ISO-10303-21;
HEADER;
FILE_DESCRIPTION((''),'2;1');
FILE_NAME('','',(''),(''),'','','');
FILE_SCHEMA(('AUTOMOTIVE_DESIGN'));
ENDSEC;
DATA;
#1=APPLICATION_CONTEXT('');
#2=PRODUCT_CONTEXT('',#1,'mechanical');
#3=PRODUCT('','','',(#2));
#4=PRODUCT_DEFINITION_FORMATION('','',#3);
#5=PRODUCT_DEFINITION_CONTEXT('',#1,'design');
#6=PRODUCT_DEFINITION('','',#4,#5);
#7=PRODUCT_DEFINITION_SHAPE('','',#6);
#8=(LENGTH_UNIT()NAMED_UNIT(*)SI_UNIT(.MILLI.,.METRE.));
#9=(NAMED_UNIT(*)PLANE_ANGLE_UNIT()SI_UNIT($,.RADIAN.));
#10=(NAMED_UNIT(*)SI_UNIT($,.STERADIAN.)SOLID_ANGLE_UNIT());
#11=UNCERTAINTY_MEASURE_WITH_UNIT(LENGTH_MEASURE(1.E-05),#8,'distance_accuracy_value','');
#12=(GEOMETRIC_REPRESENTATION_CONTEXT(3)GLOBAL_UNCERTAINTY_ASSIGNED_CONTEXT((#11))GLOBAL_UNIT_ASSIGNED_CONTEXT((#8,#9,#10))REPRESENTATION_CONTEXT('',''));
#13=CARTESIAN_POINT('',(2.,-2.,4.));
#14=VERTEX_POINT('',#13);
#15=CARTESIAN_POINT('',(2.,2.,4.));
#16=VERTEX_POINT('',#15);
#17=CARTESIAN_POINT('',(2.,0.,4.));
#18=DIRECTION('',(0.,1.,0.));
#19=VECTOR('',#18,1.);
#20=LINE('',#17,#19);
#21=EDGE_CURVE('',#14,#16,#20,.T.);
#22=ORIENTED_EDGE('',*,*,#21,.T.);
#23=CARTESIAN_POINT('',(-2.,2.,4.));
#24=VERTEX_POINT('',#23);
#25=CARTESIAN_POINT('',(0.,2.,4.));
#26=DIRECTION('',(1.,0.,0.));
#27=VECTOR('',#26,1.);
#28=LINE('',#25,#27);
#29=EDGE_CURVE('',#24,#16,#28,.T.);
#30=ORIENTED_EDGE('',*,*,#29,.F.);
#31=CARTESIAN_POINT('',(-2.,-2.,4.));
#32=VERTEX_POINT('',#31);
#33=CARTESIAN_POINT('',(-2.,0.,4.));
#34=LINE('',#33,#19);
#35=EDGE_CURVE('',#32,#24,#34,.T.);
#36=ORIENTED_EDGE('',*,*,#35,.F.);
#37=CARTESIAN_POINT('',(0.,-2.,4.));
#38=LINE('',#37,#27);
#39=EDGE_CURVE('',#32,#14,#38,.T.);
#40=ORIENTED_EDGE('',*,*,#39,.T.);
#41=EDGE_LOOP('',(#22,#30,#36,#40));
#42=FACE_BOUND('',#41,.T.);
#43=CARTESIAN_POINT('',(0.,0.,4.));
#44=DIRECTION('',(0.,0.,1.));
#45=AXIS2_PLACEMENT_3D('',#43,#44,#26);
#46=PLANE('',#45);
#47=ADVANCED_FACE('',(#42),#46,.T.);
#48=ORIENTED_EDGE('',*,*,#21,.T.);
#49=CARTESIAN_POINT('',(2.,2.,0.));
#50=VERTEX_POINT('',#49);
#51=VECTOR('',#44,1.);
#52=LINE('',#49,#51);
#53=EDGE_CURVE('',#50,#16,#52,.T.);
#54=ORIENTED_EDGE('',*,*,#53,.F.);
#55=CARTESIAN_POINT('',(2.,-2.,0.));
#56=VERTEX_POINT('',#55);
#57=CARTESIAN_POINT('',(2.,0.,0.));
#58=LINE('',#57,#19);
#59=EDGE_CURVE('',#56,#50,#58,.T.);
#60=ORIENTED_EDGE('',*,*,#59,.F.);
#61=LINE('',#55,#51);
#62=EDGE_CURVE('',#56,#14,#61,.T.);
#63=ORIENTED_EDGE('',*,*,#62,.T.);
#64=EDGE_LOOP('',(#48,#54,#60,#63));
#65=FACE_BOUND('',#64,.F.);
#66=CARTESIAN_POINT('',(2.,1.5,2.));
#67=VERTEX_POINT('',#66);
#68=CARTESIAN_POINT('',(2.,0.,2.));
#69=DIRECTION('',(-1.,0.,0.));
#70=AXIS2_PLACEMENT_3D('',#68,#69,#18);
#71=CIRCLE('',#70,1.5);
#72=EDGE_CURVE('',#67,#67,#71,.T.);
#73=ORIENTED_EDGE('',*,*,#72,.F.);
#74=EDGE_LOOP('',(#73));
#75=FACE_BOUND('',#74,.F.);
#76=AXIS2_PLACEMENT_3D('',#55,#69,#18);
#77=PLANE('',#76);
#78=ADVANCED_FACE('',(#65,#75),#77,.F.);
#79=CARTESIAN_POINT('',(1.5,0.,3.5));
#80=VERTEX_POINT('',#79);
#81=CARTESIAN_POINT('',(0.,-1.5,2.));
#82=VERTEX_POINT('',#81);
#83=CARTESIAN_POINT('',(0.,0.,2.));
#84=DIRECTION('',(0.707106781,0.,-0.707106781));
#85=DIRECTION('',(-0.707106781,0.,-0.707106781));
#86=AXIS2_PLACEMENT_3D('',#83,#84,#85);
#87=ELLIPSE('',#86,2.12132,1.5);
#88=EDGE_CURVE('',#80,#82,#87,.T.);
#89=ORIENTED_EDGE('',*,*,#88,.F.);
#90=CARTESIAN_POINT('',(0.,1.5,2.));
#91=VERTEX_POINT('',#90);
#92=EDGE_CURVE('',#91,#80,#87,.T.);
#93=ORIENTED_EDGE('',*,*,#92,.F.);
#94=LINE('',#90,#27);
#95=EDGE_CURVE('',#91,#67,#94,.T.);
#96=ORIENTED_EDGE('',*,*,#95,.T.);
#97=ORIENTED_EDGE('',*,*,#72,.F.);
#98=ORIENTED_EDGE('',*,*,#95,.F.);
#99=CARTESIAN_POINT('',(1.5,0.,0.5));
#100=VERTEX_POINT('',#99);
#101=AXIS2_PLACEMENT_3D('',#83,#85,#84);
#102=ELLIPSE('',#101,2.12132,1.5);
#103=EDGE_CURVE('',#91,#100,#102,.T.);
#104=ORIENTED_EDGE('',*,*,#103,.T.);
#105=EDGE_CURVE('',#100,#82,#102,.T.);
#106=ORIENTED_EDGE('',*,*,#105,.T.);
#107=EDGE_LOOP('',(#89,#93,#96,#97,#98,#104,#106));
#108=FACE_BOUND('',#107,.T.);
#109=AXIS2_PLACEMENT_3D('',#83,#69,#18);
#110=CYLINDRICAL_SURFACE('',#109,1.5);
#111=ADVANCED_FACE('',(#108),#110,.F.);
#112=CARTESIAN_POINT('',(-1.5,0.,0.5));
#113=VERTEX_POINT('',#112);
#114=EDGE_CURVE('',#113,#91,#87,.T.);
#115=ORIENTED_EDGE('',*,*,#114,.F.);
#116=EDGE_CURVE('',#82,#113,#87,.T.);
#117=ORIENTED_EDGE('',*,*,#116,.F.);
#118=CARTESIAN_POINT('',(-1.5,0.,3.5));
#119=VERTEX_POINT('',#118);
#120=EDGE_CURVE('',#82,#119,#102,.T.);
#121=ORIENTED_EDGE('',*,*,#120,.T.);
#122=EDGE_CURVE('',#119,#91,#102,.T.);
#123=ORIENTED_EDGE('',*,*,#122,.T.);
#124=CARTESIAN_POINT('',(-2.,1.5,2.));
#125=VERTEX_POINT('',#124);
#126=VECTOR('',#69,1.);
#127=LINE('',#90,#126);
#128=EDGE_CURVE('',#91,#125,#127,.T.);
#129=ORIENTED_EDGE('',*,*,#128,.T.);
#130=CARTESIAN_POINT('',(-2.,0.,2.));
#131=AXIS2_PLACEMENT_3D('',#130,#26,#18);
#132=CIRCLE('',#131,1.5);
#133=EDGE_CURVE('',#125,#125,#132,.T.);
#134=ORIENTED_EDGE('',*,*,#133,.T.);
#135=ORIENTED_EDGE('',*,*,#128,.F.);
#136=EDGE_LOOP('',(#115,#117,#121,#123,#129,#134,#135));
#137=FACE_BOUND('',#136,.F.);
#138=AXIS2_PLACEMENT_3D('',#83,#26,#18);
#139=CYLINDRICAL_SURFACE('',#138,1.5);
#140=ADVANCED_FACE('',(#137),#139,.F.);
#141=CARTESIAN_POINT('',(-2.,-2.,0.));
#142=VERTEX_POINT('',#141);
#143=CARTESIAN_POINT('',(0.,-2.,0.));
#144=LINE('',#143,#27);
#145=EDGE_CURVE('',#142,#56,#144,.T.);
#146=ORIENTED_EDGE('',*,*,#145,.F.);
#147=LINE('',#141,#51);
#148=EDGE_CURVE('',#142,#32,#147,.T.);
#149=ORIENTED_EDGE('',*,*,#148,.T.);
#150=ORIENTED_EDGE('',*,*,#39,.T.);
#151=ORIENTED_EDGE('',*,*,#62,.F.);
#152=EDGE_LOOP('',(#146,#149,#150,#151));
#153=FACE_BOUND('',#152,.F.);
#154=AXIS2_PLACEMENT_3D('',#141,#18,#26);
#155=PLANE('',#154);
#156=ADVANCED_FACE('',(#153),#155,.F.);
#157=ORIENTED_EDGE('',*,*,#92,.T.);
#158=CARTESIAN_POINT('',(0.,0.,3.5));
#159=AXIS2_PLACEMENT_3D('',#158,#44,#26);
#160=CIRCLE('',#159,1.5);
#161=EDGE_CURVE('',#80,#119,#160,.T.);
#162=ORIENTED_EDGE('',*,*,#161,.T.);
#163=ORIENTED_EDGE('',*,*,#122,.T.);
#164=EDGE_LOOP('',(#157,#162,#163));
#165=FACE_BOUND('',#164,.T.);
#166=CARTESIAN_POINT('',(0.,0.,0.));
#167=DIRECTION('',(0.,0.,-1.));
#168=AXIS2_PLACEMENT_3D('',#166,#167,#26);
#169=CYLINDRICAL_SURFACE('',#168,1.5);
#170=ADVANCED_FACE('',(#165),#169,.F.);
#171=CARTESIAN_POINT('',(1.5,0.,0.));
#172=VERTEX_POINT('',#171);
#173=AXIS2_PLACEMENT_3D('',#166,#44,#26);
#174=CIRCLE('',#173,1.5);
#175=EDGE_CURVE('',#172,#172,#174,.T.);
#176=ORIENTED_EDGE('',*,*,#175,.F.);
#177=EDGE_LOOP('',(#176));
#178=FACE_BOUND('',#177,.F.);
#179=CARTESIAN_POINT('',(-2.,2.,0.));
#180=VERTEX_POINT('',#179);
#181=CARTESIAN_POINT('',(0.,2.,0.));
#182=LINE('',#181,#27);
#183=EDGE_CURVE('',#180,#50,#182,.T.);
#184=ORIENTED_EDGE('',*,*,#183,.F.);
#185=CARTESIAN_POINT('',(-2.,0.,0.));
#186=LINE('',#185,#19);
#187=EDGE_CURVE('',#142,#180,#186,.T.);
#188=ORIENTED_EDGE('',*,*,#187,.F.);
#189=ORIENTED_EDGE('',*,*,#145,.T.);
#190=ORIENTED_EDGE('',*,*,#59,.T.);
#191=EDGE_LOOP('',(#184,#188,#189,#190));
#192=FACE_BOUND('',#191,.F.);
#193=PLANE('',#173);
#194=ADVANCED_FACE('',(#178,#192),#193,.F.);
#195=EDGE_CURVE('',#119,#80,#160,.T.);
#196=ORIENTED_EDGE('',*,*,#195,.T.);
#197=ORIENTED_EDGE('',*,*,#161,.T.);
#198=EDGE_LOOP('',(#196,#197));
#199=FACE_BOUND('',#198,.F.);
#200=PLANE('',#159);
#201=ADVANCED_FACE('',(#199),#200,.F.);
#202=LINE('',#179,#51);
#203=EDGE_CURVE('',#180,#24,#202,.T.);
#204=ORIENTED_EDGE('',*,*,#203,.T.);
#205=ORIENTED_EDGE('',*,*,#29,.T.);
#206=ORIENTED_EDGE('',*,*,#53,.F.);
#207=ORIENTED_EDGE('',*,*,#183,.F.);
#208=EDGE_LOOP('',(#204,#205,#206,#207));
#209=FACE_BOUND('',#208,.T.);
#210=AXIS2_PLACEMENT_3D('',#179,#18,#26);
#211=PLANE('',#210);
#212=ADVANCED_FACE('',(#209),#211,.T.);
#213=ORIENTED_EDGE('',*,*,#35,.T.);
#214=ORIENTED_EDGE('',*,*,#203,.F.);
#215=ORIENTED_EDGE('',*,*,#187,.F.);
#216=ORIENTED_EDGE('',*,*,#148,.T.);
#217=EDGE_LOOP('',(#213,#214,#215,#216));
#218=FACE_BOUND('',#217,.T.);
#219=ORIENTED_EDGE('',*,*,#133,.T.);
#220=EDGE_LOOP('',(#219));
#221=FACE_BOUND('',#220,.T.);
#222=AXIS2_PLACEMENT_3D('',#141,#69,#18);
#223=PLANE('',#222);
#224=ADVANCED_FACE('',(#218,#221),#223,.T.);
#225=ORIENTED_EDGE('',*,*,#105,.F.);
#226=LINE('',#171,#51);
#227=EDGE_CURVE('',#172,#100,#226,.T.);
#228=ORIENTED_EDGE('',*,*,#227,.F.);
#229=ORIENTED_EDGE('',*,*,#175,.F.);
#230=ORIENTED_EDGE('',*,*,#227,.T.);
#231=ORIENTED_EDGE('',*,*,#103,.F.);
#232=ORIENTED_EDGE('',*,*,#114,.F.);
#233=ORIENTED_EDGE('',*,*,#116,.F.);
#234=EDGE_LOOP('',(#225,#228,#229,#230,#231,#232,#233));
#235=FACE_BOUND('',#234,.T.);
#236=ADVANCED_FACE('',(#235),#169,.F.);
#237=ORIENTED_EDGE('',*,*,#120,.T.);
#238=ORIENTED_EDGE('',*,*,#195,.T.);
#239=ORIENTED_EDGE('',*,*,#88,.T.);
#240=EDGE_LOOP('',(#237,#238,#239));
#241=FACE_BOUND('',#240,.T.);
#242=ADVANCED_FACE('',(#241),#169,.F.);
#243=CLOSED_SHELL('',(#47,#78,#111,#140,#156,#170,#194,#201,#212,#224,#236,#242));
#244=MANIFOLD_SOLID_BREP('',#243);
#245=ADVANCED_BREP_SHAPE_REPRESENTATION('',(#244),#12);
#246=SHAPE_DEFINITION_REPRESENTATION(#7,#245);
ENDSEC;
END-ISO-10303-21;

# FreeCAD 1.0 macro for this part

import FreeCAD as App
import Part
import Sketcher


def add_polygon(sketch, points):
    """Adds a closed chain of lines whose ends are joined by coincident constraints."""
    first, n = sketch.GeometryCount, len(points)
    for a, b in zip(points, points[1:] + points[:1]):
        sketch.addGeometry(Part.LineSegment(App.Vector(*a, 0), App.Vector(*b, 0)), False)
    for i in range(n):
        sketch.addConstraint(Sketcher.Constraint("Coincident", first + i, 2, first + (i + 1) % n, 1))

doc = App.newDocument("Part")
body = doc.addObject("PartDesign::Body", "Body")

# Sketch on XY plane
sketch1 = body.newObject("Sketcher::SketchObject", "Sketch")
sketch1.AttachmentSupport = (doc.getObject("XY_Plane"), [""])
sketch1.MapMode = "FlatFace"
add_polygon(sketch1, [(-2, 2), (-2, -2), (2, -2), (2, 2)])  # lines 0-3
sketch1.addConstraint([
    Sketcher.Constraint("Vertical", 0),
    Sketcher.Constraint("Horizontal", 1),
    Sketcher.Constraint("Vertical", 2),
    Sketcher.Constraint("Horizontal", 3),
    Sketcher.Constraint("Symmetric", 0, 2, 2, 2, -1, 1),
    Sketcher.Constraint("Equal", 3, 0),
    Sketcher.Constraint("DistanceX", 1, 1, 1, 2, 4.0),
])
pad1 = body.newObject("PartDesign::Pad", "Pad")
pad1.Profile = sketch1
pad1.Length = 4

# Sketch on XY plane
sketch2 = body.newObject("Sketcher::SketchObject", "Sketch001")
sketch2.AttachmentSupport = (doc.getObject("XY_Plane"), [""])
sketch2.MapMode = "FlatFace"
sketch2.addGeometry(Part.Circle(App.Vector(0, 0, 0), App.Vector(0, 0, 1), 1.5), False)
sketch2.addConstraint([
    Sketcher.Constraint("Coincident", 0, 3, -1, 1),
    Sketcher.Constraint("Diameter", 0, 3.0),
])
pocket1 = body.newObject("PartDesign::Pocket", "Pocket")
pocket1.Profile = sketch2
pocket1.Length = 3.5
pocket1.Reversed = True

# Sketch on YZ plane
sketch3 = body.newObject("Sketcher::SketchObject", "Sketch002")
sketch3.AttachmentSupport = (doc.getObject("YZ_Plane"), [""])
sketch3.MapMode = "FlatFace"
sketch3.addGeometry(Part.Circle(App.Vector(0, 2, 0), App.Vector(0, 0, 1), 1.5), False)
sketch3.addConstraint([
    Sketcher.Constraint("PointOnObject", 0, 3, -2),
    Sketcher.Constraint("Diameter", 0, 3.0),
    Sketcher.Constraint("DistanceY", -1, 1, 0, 3, 2.0),
])
pocket2 = body.newObject("PartDesign::Pocket", "Pocket001")
pocket2.Profile = sketch3
pocket2.Type = "ThroughAll"
pocket2.Midplane = True

doc.recompute()
